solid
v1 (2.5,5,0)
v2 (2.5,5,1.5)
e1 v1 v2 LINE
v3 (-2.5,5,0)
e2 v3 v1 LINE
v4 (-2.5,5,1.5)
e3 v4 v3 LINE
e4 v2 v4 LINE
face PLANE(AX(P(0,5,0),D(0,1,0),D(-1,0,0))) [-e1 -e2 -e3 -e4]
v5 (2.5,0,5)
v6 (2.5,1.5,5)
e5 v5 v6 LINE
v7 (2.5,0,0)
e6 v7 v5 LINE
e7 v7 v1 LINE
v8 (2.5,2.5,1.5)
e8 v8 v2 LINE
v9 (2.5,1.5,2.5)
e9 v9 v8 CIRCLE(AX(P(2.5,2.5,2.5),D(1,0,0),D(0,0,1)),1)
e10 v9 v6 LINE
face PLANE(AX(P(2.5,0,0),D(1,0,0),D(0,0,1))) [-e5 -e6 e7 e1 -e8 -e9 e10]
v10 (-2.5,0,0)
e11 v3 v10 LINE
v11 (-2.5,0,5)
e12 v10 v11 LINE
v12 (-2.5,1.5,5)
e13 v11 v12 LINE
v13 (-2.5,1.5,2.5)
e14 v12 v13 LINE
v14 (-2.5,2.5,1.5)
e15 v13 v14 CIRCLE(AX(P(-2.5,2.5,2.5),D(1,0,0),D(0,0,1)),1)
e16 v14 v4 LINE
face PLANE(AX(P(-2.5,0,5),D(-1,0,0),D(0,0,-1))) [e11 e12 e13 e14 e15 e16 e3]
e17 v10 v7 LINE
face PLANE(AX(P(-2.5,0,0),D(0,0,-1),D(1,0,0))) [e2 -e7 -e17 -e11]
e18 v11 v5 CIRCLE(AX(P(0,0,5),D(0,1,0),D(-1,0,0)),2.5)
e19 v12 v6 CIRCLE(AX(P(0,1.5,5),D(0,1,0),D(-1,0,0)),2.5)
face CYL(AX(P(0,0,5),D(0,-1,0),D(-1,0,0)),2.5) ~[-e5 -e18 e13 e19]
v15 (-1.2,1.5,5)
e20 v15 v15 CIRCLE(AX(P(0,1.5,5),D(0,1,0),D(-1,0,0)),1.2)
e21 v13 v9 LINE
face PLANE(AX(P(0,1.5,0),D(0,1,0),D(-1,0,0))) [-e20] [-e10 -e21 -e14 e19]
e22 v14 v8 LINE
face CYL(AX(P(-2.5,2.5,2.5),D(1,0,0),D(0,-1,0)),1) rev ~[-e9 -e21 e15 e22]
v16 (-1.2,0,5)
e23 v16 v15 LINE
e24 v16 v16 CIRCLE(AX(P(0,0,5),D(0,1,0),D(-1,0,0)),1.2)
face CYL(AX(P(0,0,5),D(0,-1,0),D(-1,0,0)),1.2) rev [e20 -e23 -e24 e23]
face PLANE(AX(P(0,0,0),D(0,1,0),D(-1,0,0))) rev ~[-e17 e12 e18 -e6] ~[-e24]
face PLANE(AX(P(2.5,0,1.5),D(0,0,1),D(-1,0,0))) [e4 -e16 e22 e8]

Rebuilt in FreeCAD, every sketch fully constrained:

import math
import FreeCAD as App
import Part
import Sketcher


def edges_at(feature, points):
    """Names of the edges that pass closest to the given points."""
    edges = feature.Shape.Edges
    near = lambda p: min(range(len(edges)), key=lambda i: edges[i].distToShape(Part.Vertex(*p))[0])
    return sorted({f"Edge{near(p) + 1}" for p in points})

doc = App.newDocument("Part")
params = doc.addObject("Spreadsheet::Sheet", "Params")
for row, (alias, value) in enumerate([
    ("sketch1_diameter", "2.4 mm"),
    ("sketch1_radius", "2.5 mm"),
    ("pad1_length", "1.5 mm"),
    ("sketch2_width", "5 mm"),
    ("sketch2_height", "1.5 mm"),
    ("pad2_length", "5 mm"),
    ("fillet_radius", "1 mm"),
], start=1):
    params.set(f"A{row}", alias)
    params.set(f"B{row}", "=" + value)
    params.setAlias(f"B{row}", alias)

body = doc.addObject("PartDesign::Body", "Body")

# Sketch on XZ plane
sketch1 = body.newObject("Sketcher::SketchObject", "Sketch")
sketch1.AttachmentSupport = (doc.getObject("XZ_Plane"), [""])
sketch1.MapMode = "FlatFace"
sketch1.addGeometry(Part.LineSegment(App.Vector(-2.5, 0, 0), App.Vector(-2.5, 5, 0)), False)
sketch1.addGeometry(Part.ArcOfCircle(Part.Circle(App.Vector(0, 5, 0), App.Vector(0, 0, 1), 2.5), math.radians(0), math.radians(180)), False)
sketch1.addGeometry(Part.LineSegment(App.Vector(2.5, 5, 0), App.Vector(2.5, 0, 0)), False)
sketch1.addGeometry(Part.LineSegment(App.Vector(2.5, 0, 0), App.Vector(-2.5, 0, 0)), False)
sketch1.addGeometry(Part.Circle(App.Vector(0, 5, 0), App.Vector(0, 0, 1), 1.2), False)
sketch1.addConstraint(Sketcher.Constraint("Tangent", 0, 2, 1, 2))
sketch1.addConstraint(Sketcher.Constraint("Tangent", 1, 1, 2, 1))
sketch1.addConstraint(Sketcher.Constraint("Coincident", 2, 2, 3, 1))
sketch1.addConstraint(Sketcher.Constraint("Coincident", 3, 2, 0, 1))
sketch1.addConstraint(Sketcher.Constraint("Vertical", 0))
sketch1.addConstraint(Sketcher.Constraint("Vertical", 2))
sketch1.addConstraint(Sketcher.Constraint("Horizontal", 3))
sketch1.addConstraint(Sketcher.Constraint("Coincident", 4, 3, 1, 3))
sketch1.addConstraint(Sketcher.Constraint("Symmetric", 2, 2, 3, 2, -1, 1))
sketch1.addConstraint(Sketcher.Constraint("Equal", 3, 0))
sketch1.addConstraint(Sketcher.Constraint("Diameter", 4, 2.4))
sketch1.addConstraint(Sketcher.Constraint("Radius", 1, 2.5))
sketch1.setExpression("Constraints[10]", "Params.sketch1_diameter")
sketch1.setExpression("Constraints[11]", "Params.sketch1_radius")
pad1 = body.newObject("PartDesign::Pad", "Pad")
pad1.Profile = sketch1
pad1.setExpression("Length", "Params.pad1_length")
pad1.Reversed = True

# Sketch on XZ plane
sketch2 = body.newObject("Sketcher::SketchObject", "Sketch001")
sketch2.AttachmentSupport = (doc.getObject("XZ_Plane"), [""])
sketch2.MapMode = "FlatFace"
sketch2.addGeometry(Part.LineSegment(App.Vector(-2.5, 1.5, 0), App.Vector(2.5, 1.5, 0)), False)
sketch2.addGeometry(Part.LineSegment(App.Vector(2.5, 1.5, 0), App.Vector(2.5, 0, 0)), False)
sketch2.addGeometry(Part.LineSegment(App.Vector(2.5, 0, 0), App.Vector(-2.5, 0, 0)), False)
sketch2.addGeometry(Part.LineSegment(App.Vector(-2.5, 0, 0), App.Vector(-2.5, 1.5, 0)), False)
sketch2.addConstraint(Sketcher.Constraint("Coincident", 0, 2, 1, 1))
sketch2.addConstraint(Sketcher.Constraint("Coincident", 1, 2, 2, 1))
sketch2.addConstraint(Sketcher.Constraint("Coincident", 2, 2, 3, 1))
sketch2.addConstraint(Sketcher.Constraint("Coincident", 3, 2, 0, 1))
sketch2.addConstraint(Sketcher.Constraint("Horizontal", 0))
sketch2.addConstraint(Sketcher.Constraint("Vertical", 1))
sketch2.addConstraint(Sketcher.Constraint("Horizontal", 2))
sketch2.addConstraint(Sketcher.Constraint("Vertical", 3))
sketch2.addConstraint(Sketcher.Constraint("Symmetric", 1, 2, 2, 2, -1, 1))
sketch2.addConstraint(Sketcher.Constraint("DistanceX", 0, 1, 0, 2, 5.0))
sketch2.addConstraint(Sketcher.Constraint("DistanceY", 1, 2, 1, 1, 1.5))
sketch2.setExpression("Constraints[9]", "Params.sketch2_width")
sketch2.setExpression("Constraints[10]", "Params.sketch2_height")
pad2 = body.newObject("PartDesign::Pad", "Pad001")
pad2.Profile = sketch2
pad2.setExpression("Length", "Params.pad2_length")
pad2.Reversed = True
doc.recompute()

fillet = body.newObject("PartDesign::Fillet", "Fillet")
fillet.Base = (pad2, edges_at(pad2, [(0, 1.5, 1.5)]))
fillet.setExpression("Radius", "Params.fillet_radius")

doc.recompute()
